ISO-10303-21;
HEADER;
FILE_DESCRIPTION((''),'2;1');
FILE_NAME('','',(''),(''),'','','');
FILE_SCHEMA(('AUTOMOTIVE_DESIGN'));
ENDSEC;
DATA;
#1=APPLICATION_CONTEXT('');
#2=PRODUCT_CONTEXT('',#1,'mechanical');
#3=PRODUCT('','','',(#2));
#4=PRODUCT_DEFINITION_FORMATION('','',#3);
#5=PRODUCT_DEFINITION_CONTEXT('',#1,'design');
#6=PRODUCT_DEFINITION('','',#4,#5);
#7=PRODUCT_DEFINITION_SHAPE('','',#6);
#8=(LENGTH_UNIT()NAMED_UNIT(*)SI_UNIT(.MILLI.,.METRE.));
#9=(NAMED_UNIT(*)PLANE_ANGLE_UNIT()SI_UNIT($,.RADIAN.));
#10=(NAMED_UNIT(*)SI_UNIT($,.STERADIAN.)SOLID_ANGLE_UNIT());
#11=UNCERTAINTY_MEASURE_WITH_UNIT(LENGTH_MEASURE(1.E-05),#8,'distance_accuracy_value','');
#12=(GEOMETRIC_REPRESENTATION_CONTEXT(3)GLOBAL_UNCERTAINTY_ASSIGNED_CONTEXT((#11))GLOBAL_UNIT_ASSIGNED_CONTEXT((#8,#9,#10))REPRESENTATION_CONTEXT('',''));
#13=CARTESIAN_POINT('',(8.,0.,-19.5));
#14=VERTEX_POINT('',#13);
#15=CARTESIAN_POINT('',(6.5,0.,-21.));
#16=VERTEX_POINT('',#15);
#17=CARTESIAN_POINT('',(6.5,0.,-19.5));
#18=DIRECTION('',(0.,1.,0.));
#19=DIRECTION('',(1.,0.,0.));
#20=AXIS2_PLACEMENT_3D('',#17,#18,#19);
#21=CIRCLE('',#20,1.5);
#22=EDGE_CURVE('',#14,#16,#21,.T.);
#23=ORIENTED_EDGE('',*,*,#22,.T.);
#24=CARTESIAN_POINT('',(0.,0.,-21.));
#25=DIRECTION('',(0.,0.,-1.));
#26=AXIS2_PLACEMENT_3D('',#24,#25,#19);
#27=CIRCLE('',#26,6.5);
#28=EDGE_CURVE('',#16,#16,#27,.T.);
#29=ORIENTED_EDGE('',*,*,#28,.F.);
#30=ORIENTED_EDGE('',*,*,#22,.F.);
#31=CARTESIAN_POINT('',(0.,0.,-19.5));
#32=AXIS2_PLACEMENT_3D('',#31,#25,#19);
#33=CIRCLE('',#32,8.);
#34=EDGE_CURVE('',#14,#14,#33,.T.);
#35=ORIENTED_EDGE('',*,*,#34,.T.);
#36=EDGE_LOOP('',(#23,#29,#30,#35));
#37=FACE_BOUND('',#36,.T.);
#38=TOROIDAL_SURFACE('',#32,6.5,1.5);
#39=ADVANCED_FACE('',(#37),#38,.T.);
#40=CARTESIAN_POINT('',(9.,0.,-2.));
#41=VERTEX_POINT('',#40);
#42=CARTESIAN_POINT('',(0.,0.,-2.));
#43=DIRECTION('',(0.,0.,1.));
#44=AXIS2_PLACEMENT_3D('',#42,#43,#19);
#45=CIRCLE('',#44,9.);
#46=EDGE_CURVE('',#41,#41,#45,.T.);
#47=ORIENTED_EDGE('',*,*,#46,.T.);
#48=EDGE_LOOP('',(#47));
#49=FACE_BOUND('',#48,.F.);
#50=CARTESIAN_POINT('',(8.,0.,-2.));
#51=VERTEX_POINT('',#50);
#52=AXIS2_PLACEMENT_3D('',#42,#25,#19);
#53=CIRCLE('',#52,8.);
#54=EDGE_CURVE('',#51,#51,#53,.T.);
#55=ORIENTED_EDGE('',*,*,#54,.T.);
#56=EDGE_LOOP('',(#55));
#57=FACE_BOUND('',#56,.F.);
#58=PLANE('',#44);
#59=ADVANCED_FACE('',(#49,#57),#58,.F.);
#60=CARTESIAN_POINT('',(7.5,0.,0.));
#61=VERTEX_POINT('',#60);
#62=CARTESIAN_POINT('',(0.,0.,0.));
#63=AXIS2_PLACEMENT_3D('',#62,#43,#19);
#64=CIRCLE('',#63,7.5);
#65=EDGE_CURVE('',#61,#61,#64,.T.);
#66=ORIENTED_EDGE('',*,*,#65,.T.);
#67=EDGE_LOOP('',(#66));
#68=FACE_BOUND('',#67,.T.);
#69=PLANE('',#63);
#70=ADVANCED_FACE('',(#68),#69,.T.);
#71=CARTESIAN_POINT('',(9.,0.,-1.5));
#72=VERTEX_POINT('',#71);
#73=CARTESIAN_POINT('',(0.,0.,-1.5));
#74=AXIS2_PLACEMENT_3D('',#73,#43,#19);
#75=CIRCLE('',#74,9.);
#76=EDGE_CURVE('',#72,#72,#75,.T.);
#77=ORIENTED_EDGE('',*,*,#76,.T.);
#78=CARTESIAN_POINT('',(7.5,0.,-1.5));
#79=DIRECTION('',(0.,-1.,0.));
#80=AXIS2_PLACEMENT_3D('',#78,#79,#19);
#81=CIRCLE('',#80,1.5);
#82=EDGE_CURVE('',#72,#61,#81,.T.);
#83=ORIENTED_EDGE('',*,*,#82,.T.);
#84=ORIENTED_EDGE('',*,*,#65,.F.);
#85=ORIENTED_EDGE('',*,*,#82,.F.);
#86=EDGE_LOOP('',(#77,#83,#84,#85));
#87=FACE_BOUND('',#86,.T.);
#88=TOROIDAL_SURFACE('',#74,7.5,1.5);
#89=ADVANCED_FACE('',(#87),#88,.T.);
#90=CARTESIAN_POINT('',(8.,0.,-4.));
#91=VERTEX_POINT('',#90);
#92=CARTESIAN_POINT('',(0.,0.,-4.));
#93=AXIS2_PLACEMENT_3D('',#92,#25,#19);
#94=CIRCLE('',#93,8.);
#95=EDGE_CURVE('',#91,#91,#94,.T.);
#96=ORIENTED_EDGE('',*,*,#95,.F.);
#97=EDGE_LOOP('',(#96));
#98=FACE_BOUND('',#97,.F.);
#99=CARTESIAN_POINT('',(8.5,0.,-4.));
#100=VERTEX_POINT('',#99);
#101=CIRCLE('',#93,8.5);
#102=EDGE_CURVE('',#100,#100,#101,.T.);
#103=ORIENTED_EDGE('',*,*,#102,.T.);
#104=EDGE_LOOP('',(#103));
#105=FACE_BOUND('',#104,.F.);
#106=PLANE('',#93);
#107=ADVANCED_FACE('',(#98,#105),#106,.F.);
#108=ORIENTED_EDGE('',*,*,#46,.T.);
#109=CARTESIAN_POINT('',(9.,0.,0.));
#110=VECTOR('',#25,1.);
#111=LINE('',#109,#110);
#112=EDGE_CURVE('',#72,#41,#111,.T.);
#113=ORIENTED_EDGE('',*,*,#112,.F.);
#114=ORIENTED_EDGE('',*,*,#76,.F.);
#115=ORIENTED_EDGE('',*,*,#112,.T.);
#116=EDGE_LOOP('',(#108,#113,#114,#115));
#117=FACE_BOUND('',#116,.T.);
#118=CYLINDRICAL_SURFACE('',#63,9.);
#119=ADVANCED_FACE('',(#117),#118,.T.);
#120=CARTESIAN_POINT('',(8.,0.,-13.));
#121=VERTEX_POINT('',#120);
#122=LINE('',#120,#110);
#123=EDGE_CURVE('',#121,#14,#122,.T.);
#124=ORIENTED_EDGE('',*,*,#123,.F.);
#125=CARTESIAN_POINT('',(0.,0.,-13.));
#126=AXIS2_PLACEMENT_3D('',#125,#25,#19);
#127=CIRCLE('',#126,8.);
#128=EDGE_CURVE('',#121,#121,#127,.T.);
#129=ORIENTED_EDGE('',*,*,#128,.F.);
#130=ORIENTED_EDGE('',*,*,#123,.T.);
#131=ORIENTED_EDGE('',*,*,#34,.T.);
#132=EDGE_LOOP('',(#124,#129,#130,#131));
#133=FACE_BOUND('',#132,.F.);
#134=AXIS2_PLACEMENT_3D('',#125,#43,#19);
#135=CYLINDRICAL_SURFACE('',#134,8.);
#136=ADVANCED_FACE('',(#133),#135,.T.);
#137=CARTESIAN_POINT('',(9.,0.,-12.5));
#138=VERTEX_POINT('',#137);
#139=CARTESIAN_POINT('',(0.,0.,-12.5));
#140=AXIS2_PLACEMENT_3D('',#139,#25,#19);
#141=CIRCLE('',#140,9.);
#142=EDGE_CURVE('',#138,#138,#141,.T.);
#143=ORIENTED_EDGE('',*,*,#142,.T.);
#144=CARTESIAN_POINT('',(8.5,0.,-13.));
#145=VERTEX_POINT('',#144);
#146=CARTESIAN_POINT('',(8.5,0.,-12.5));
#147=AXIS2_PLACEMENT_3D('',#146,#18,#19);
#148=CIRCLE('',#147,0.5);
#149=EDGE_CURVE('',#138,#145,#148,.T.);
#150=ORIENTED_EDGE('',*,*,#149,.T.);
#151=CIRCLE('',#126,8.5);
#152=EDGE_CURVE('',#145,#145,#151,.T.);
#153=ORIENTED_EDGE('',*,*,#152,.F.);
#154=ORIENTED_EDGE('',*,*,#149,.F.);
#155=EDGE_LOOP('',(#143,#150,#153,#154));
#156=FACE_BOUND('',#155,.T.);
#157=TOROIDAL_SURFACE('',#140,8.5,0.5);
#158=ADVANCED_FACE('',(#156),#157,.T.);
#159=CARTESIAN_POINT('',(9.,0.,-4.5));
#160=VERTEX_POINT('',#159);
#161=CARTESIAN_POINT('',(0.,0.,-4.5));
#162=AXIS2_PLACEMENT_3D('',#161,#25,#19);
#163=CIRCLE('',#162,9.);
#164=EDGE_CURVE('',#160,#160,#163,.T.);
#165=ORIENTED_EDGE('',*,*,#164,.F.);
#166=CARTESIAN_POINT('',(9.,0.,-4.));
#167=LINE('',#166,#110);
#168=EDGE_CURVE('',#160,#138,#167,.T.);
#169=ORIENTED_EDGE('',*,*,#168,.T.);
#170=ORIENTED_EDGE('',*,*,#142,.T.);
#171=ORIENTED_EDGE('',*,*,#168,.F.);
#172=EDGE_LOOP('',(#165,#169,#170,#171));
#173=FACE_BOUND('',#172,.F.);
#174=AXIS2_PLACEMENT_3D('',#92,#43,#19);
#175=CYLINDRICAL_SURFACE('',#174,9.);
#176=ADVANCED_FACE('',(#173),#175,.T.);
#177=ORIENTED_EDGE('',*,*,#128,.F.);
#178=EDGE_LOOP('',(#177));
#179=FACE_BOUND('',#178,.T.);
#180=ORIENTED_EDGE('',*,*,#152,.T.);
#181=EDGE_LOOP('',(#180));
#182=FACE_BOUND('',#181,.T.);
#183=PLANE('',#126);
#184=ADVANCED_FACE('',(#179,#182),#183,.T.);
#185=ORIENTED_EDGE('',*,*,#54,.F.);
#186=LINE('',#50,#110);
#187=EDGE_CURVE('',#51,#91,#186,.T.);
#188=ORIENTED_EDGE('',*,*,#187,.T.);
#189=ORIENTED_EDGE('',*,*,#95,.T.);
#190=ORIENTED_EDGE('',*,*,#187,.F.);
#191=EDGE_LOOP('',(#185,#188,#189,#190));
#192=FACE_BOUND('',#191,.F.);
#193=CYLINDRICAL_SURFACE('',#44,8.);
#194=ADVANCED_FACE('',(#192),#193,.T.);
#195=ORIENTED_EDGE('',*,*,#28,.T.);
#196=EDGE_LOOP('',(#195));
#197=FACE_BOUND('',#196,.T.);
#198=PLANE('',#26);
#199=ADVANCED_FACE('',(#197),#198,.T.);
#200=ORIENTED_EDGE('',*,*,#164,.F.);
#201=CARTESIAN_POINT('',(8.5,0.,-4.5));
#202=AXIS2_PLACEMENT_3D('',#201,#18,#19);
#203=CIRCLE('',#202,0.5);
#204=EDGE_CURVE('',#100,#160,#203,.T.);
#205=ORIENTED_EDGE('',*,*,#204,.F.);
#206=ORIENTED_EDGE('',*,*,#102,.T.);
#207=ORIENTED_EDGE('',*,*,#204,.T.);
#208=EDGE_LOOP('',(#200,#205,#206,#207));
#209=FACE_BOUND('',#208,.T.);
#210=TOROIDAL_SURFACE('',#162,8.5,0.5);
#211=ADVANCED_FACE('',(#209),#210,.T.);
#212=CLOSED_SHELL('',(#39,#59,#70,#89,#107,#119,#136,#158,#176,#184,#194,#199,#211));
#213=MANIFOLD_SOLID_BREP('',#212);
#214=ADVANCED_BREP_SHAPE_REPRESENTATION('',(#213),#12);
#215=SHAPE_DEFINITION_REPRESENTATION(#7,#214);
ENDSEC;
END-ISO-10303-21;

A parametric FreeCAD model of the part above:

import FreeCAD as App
import Part
import Sketcher


def edges_at(feature, points):
    """Names of the edges that pass closest to the given points."""
    edges = feature.Shape.Edges
    near = lambda p: min(range(len(edges)), key=lambda i: edges[i].distToShape(Part.Vertex(*p))[0])
    return sorted({f"Edge{near(p) + 1}" for p in points})

doc = App.newDocument("Part")
params = doc.addObject("Spreadsheet::Sheet", "Params")
for row, (alias, value) in enumerate([
    ("sketch1_diameter", "18 mm"),
    ("pad1_length", "2 mm"),
    ("sketch2_diameter", "16 mm"),
    ("pad2_length", "2 mm"),
    ("sketch3_diameter", "18 mm"),
    ("pad3_length", "9 mm"),
    ("sketch4_diameter", "16 mm"),
    ("pad4_length", "8 mm"),
    ("fillet_radius", "1.5 mm"),
    ("fillet2_radius", "0.5 mm"),
    ("fillet3_radius", "1.5 mm"),
], start=1):
    params.set(f"A{row}", alias)
    params.set(f"B{row}", "=" + value)
    params.setAlias(f"B{row}", alias)

body = doc.addObject("PartDesign::Body", "Body")

sketch1 = body.newObject("Sketcher::SketchObject", "Sketch")
sketch1.AttachmentSupport = (doc.getObject("XY_Plane"), [""])
sketch1.MapMode = "FlatFace"
sketch1.addGeometry(Part.Circle(App.Vector(0, 0, 0), App.Vector(0, 0, 1), 9), False)
sketch1.addConstraint(Sketcher.Constraint("Coincident", 0, 3, -1, 1))
sketch1.addConstraint(Sketcher.Constraint("Diameter", 0, 18.0))
sketch1.setExpression("Constraints[1]", "Params.sketch1_diameter")
pad1 = body.newObject("PartDesign::Pad", "Pad")
pad1.Profile = sketch1
pad1.setExpression("Length", "Params.pad1_length")
pad1.Reversed = True

sketch2 = body.newObject("Sketcher::SketchObject", "Sketch001")
sketch2.AttachmentSupport = (doc.getObject("XY_Plane"), [""])
sketch2.MapMode = "FlatFace"
sketch2.AttachmentOffset = App.Placement(App.Vector(0, 0, -2), App.Rotation())
sketch2.addGeometry(Part.Circle(App.Vector(0, 0, 0), App.Vector(0, 0, 1), 8), False)
sketch2.addConstraint(Sketcher.Constraint("Coincident", 0, 3, -1, 1))
sketch2.addConstraint(Sketcher.Constraint("Diameter", 0, 16.0))
sketch2.setExpression("Constraints[1]", "Params.sketch2_diameter")
pad2 = body.newObject("PartDesign::Pad", "Pad001")
pad2.Profile = sketch2
pad2.setExpression("Length", "Params.pad2_length")
pad2.Reversed = True

sketch3 = body.newObject("Sketcher::SketchObject", "Sketch002")
sketch3.AttachmentSupport = (doc.getObject("XY_Plane"), [""])
sketch3.MapMode = "FlatFace"
sketch3.AttachmentOffset = App.Placement(App.Vector(0, 0, -4), App.Rotation())
sketch3.addGeometry(Part.Circle(App.Vector(0, 0, 0), App.Vector(0, 0, 1), 9), False)
sketch3.addConstraint(Sketcher.Constraint("Coincident", 0, 3, -1, 1))
sketch3.addConstraint(Sketcher.Constraint("Diameter", 0, 18.0))
sketch3.setExpression("Constraints[1]", "Params.sketch3_diameter")
pad3 = body.newObject("PartDesign::Pad", "Pad002")
pad3.Profile = sketch3
pad3.setExpression("Length", "Params.pad3_length")
pad3.Reversed = True

sketch4 = body.newObject("Sketcher::SketchObject", "Sketch003")
sketch4.AttachmentSupport = (doc.getObject("XY_Plane"), [""])
sketch4.MapMode = "FlatFace"
sketch4.AttachmentOffset = App.Placement(App.Vector(0, 0, -13), App.Rotation())
sketch4.addGeometry(Part.Circle(App.Vector(0, 0, 0), App.Vector(0, 0, 1), 8), False)
sketch4.addConstraint(Sketcher.Constraint("Coincident", 0, 3, -1, 1))
sketch4.addConstraint(Sketcher.Constraint("Diameter", 0, 16.0))
sketch4.setExpression("Constraints[1]", "Params.sketch4_diameter")
pad4 = body.newObject("PartDesign::Pad", "Pad003")
pad4.Profile = sketch4
pad4.setExpression("Length", "Params.pad4_length")
pad4.Reversed = True
doc.recompute()

fillet = body.newObject("PartDesign::Fillet", "Fillet")
fillet.Base = (pad4, edges_at(pad4, [(-9, 0, 0)]))
fillet.setExpression("Radius", "Params.fillet_radius")
doc.recompute()

fillet2 = body.newObject("PartDesign::Fillet", "Fillet001")
fillet2.Base = (fillet, edges_at(fillet, [(-9, 0, -4), (-9, 0, -13)]))
fillet2.setExpression("Radius", "Params.fillet2_radius")
doc.recompute()

fillet3 = body.newObject("PartDesign::Fillet", "Fillet002")
fillet3.Base = (fillet2, edges_at(fillet2, [(-8, 0, -21)]))
fillet3.setExpression("Radius", "Params.fillet3_radius")

doc.recompute()
